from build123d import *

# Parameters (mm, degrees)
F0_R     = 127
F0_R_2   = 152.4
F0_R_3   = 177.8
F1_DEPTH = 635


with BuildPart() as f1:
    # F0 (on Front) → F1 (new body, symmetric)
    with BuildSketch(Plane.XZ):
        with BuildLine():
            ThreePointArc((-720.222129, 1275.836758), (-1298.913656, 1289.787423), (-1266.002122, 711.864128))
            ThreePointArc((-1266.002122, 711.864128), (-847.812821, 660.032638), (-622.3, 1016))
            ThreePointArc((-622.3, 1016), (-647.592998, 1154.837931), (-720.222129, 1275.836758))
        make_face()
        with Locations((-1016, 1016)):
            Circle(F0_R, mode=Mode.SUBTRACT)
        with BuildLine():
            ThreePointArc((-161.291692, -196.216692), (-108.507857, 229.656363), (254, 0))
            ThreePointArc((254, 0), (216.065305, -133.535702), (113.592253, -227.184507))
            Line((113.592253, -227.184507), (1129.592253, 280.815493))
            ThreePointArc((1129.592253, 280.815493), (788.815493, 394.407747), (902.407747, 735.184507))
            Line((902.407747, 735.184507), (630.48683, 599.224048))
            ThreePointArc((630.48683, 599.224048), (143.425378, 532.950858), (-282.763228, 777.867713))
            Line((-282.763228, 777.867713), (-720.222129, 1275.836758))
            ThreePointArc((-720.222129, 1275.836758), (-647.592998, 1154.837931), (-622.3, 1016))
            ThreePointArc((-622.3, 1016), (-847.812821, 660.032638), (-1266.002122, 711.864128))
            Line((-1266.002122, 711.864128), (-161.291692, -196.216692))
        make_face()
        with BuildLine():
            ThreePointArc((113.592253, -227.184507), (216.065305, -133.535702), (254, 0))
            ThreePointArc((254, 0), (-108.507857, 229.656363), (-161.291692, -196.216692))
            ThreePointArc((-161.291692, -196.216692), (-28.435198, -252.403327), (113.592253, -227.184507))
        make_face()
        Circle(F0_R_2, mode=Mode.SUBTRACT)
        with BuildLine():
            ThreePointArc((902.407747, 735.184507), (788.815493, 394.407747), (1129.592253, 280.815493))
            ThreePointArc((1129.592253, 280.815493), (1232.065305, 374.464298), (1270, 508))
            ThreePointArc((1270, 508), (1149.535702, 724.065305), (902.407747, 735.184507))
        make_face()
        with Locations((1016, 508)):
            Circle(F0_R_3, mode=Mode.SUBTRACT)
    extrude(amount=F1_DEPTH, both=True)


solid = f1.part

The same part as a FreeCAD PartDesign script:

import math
import FreeCAD as App
import Part
import Sketcher
Q = App.Units.Quantity

doc = App.newDocument("Part")
body = doc.addObject("PartDesign::Body", "Body")

sketch1 = doc.addObject("Sketcher::SketchObject", "Sketch")
body.addObject(sketch1)
sketch1.AttachmentSupport = (doc.XZ_Plane, [""])
sketch1.MapMode = "FlatFace"
sketch1.addGeometry(Part.ArcOfCircle(Part.Circle(App.Vector(-1016, 1016, 0), App.Vector(0, 0, 1), 394), math.radians(41), math.radians(231)), False)
sketch1.addGeometry(Part.LineSegment(App.Vector(-1266, 712, 0), App.Vector(-161, -196, 0)), False)
sketch1.addGeometry(Part.ArcOfCircle(Part.Circle(App.Vector(0, 0, 0), App.Vector(0, 0, 1), 254), math.radians(-129), math.radians(-63)), False)
sketch1.addGeometry(Part.LineSegment(App.Vector(114, -227, 0), App.Vector(1130, 281, 0)), False)
sketch1.addGeometry(Part.ArcOfCircle(Part.Circle(App.Vector(1016, 508, 0), App.Vector(0, 0, 1), 254), math.radians(-63), math.radians(0)), False)
sketch1.addGeometry(Part.ArcOfCircle(Part.Circle(App.Vector(1016, 508, 0), App.Vector(0, 0, 1), 254), math.radians(0), math.radians(117)), False)
sketch1.addGeometry(Part.LineSegment(App.Vector(902, 735, 0), App.Vector(630, 599, 0)), False)
sketch1.addGeometry(Part.ArcOfCircle(Part.Circle(App.Vector(290, 1281, 0), App.Vector(0, 0, 1), 762), math.radians(-139), math.radians(-63)), False)
sketch1.addGeometry(Part.LineSegment(App.Vector(-283, 778, 0), App.Vector(-720, 1276, 0)), False)
sketch1.addGeometry(Part.Circle(App.Vector(0, 0, 0), App.Vector(0, 0, 1), 152), False)
sketch1.addGeometry(Part.Circle(App.Vector(-1016, 1016, 0), App.Vector(0, 0, 1), 127), False)
sketch1.addGeometry(Part.Circle(App.Vector(1016, 508, 0), App.Vector(0, 0, 1), 178), False)
sketch1.addConstraint(Sketcher.Constraint("Tangent", 0, 2, 1, 1))
sketch1.addConstraint(Sketcher.Constraint("Tangent", 1, 2, 2, 1))
sketch1.addConstraint(Sketcher.Constraint("Tangent", 2, 2, 3, 1))
sketch1.addConstraint(Sketcher.Constraint("Tangent", 3, 2, 4, 1))
sketch1.addConstraint(Sketcher.Constraint("Tangent", 4, 2, 5, 1))
sketch1.addConstraint(Sketcher.Constraint("Tangent", 5, 2, 6, 1))
sketch1.addConstraint(Sketcher.Constraint("Tangent", 6, 2, 7, 2))
sketch1.addConstraint(Sketcher.Constraint("Tangent", 7, 1, 8, 1))
sketch1.addConstraint(Sketcher.Constraint("Tangent", 8, 2, 0, 1))
sketch1.addConstraint(Sketcher.Constraint("Coincident", 2, 3, -1, 1))
sketch1.addConstraint(Sketcher.Constraint("Coincident", 9, 3, -1, 1))
sketch1.addConstraint(Sketcher.Constraint("Coincident", 10, 3, 0, 3))
sketch1.addConstraint(Sketcher.Constraint("Coincident", 11, 3, 4, 3))
sketch1.addConstraint(Sketcher.Constraint("Equal", 2, 4))
sketch1.addConstraint(Sketcher.Constraint("Equal", 2, 5))
sketch1.addConstraint(Sketcher.Constraint("Parallel", 3, 6))
sketch1.addConstraint(Sketcher.Constraint("Horizontal", 11, 3, 4, 2))
sketch1.addConstraint(Sketcher.Constraint("Diameter", 9, Q("12 in")))
sketch1.addConstraint(Sketcher.Constraint("Diameter", 10, Q("10 in")))
sketch1.addConstraint(Sketcher.Constraint("Diameter", 11, Q("14 in")))
sketch1.addConstraint(Sketcher.Constraint("Radius", 2, Q("10.0000001 in")))
sketch1.addConstraint(Sketcher.Constraint("Radius", 7, Q("30.0000001 in")))
sketch1.addConstraint(Sketcher.Constraint("Radius", 0, Q("15.5 in")))
sketch1.addConstraint(Sketcher.Constraint("DistanceX", 0, 3, -1, 1, Q("40 in")))
sketch1.addConstraint(Sketcher.Constraint("DistanceY", -1, 1, 0, 3, Q("40 in")))
sketch1.addConstraint(Sketcher.Constraint("DistanceX", -1, 1, 4, 3, Q("39.9999998 in")))
sketch1.addConstraint(Sketcher.Constraint("DistanceY", -1, 1, 4, 3, Q("20.0000001 in")))
sketch1.addConstraint(Sketcher.Constraint("DistanceX", 8, 2, 7, 3, Q("1009.9322 mm")))
pad1 = doc.addObject("PartDesign::Pad", "Pad")
body.addObject(pad1)
pad1.Profile = sketch1
pad1.Length = Q("50 in")
pad1.Midplane = True

doc.recompute()
